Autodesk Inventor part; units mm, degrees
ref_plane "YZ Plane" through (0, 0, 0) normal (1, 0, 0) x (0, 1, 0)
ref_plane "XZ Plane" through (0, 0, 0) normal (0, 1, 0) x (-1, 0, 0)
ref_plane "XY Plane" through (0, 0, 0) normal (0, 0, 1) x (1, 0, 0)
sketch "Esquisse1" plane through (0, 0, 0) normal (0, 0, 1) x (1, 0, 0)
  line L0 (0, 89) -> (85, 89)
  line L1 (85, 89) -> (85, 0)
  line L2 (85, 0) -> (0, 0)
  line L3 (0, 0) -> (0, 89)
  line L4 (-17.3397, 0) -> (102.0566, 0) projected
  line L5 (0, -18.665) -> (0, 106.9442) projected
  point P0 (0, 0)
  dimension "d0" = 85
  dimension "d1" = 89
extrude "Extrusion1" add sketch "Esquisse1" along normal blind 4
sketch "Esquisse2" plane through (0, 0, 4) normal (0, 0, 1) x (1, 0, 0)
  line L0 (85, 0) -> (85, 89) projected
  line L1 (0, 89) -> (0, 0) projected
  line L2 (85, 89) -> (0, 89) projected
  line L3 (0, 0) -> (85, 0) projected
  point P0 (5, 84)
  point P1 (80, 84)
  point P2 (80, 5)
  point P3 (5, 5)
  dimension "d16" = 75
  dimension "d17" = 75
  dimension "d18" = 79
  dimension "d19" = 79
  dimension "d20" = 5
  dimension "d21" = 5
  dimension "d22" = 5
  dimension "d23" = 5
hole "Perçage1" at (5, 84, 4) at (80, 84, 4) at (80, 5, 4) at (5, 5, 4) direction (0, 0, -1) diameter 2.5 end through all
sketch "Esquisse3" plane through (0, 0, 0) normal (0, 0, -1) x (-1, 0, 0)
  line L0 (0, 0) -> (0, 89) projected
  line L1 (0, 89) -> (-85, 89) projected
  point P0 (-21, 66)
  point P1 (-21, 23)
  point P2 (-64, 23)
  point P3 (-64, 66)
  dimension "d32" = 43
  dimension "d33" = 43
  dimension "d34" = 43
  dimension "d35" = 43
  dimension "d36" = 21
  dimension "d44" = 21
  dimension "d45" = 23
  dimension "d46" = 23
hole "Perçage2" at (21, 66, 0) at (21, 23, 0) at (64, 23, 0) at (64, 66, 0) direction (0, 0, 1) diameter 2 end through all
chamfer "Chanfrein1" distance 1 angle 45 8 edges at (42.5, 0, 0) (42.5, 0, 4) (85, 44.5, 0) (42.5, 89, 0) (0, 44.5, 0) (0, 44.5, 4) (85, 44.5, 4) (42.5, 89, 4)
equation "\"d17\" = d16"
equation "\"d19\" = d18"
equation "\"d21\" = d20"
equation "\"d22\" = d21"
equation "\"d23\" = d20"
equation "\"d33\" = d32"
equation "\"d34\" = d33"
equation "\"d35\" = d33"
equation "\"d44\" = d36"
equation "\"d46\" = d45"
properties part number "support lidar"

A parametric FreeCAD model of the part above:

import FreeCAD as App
import Part
import Sketcher
from FreeCAD import Vector
Q = App.Units.Quantity


def edges_at(feature, points):
    """Names of the edges that pass closest to the given points."""
    edges = feature.Shape.Edges
    near = lambda p: min(range(len(edges)), key=lambda i: edges[i].distToShape(Part.Vertex(*p))[0])
    return sorted({f"Edge{near(p) + 1}" for p in points})

doc = App.newDocument("Part")
body = doc.addObject("PartDesign::Body", "Body")

# Sketch on XY plane
sketch1 = body.newObject("Sketcher::SketchObject", "Sketch")
sketch1.AttachmentSupport = (doc.getObject("XY_Plane"), [""])
sketch1.MapMode = "FlatFace"
sketch1.addGeometry(Part.LineSegment(Vector(85, 89, 0), Vector(0, 89, 0)), False)
sketch1.addGeometry(Part.LineSegment(Vector(0, 89, 0), Vector(0, 0, 0)), False)
sketch1.addGeometry(Part.LineSegment(Vector(0, 0, 0), Vector(85, 0, 0)), False)
sketch1.addGeometry(Part.LineSegment(Vector(85, 0, 0), Vector(85, 89, 0)), False)
sketch1.addConstraint(Sketcher.Constraint("Coincident", 0, 2, 1, 1))
sketch1.addConstraint(Sketcher.Constraint("Coincident", 1, 2, 2, 1))
sketch1.addConstraint(Sketcher.Constraint("Coincident", 2, 2, 3, 1))
sketch1.addConstraint(Sketcher.Constraint("Coincident", 3, 2, 0, 1))
sketch1.addConstraint(Sketcher.Constraint("Horizontal", 0))
sketch1.addConstraint(Sketcher.Constraint("Vertical", 1))
sketch1.addConstraint(Sketcher.Constraint("Horizontal", 2))
sketch1.addConstraint(Sketcher.Constraint("Vertical", 3))
sketch1.addConstraint(Sketcher.Constraint("Coincident", 1, 2, -1, 1))
sketch1.addConstraint(Sketcher.Constraint("DistanceX", 0, 2, 0, 1, Q("85 mm")))
sketch1.addConstraint(Sketcher.Constraint("DistanceY", 1, 2, 1, 1, Q("89 mm")))
pad1 = body.newObject("PartDesign::Pad", "Pad")
pad1.Profile = sketch1
pad1.Length = 4

# Sketch on XY plane
sketch2 = body.newObject("Sketcher::SketchObject", "Sketch001")
sketch2.AttachmentSupport = (doc.getObject("XY_Plane"), [""])
sketch2.MapMode = "FlatFace"
sketch2.AttachmentOffset = App.Placement(Vector(0, 0, 4), App.Rotation())
sketch2.addGeometry(Part.Circle(Vector(5, 84, 0), Vector(0, 0, 1), 1.2), False)
sketch2.addGeometry(Part.Circle(Vector(80, 84, 0), Vector(0, 0, 1), 1.2), False)
sketch2.addGeometry(Part.Circle(Vector(80, 5, 0), Vector(0, 0, 1), 1.2), False)
sketch2.addGeometry(Part.Circle(Vector(5, 5, 0), Vector(0, 0, 1), 1.2), False)
sketch2.addConstraint(Sketcher.Constraint("Equal", 0, 1))
sketch2.addConstraint(Sketcher.Constraint("Equal", 1, 2))
sketch2.addConstraint(Sketcher.Constraint("Equal", 2, 3))
sketch2.addConstraint(Sketcher.Constraint("Horizontal", 0, 3, 1, 3))
sketch2.addConstraint(Sketcher.Constraint("Horizontal", 2, 3, 3, 3))
sketch2.addConstraint(Sketcher.Constraint("Vertical", 1, 3, 2, 3))
sketch2.addConstraint(Sketcher.Constraint("Vertical", 0, 3, 3, 3))
sketch2.addConstraint(Sketcher.Constraint("Diameter", 0, Q("2.5 mm")))
sketch2.addConstraint(Sketcher.Constraint("DistanceX", -1, 1, 0, 3, Q("5 mm")))
sketch2.addConstraint(Sketcher.Constraint("DistanceY", -1, 1, 0, 3, Q("84 mm")))
sketch2.addConstraint(Sketcher.Constraint("DistanceX", -1, 1, 1, 3, Q("80 mm")))
sketch2.addConstraint(Sketcher.Constraint("DistanceY", -1, 1, 2, 3, Q("5 mm")))
doc.recompute()
hole = body.newObject("PartDesign::Hole", "Hole")
hole.Profile = sketch2
hole.ThreadType = "None"
hole.Diameter = 2.5
hole.DepthType = "ThroughAll"

# Sketch on XY plane
sketch3 = body.newObject("Sketcher::SketchObject", "Sketch002")
sketch3.AttachmentSupport = (doc.getObject("XY_Plane"), [""])
sketch3.MapMode = "FlatFace"
sketch3.addGeometry(Part.Circle(Vector(21, 66, 0), Vector(0, 0, 1), 1), False)
sketch3.addGeometry(Part.Circle(Vector(21, 23, 0), Vector(0, 0, 1), 1), False)
sketch3.addGeometry(Part.Circle(Vector(64, 23, 0), Vector(0, 0, 1), 1), False)
sketch3.addGeometry(Part.Circle(Vector(64, 66, 0), Vector(0, 0, 1), 1), False)
sketch3.addConstraint(Sketcher.Constraint("Equal", 0, 1))
sketch3.addConstraint(Sketcher.Constraint("Equal", 1, 2))
sketch3.addConstraint(Sketcher.Constraint("Equal", 2, 3))
sketch3.addConstraint(Sketcher.Constraint("Horizontal", 1, 3, 2, 3))
sketch3.addConstraint(Sketcher.Constraint("Horizontal", 0, 3, 3, 3))
sketch3.addConstraint(Sketcher.Constraint("Vertical", 0, 3, 1, 3))
sketch3.addConstraint(Sketcher.Constraint("Vertical", 2, 3, 3, 3))
sketch3.addConstraint(Sketcher.Constraint("Diameter", 0, Q("2 mm")))
sketch3.addConstraint(Sketcher.Constraint("DistanceX", -1, 1, 0, 3, Q("21 mm")))
sketch3.addConstraint(Sketcher.Constraint("DistanceY", -1, 1, 0, 3, Q("66 mm")))
sketch3.addConstraint(Sketcher.Constraint("DistanceY", -1, 1, 1, 3, Q("23 mm")))
sketch3.addConstraint(Sketcher.Constraint("DistanceX", -1, 1, 2, 3, Q("64 mm")))
doc.recompute()
hole2 = body.newObject("PartDesign::Hole", "Hole001")
hole2.Profile = sketch3
hole2.ThreadType = "None"
hole2.Diameter = 2
hole2.DepthType = "ThroughAll"
hole2.Reversed = True
doc.recompute()

chamfer = body.newObject("PartDesign::Chamfer", "Chamfer")
chamfer.Base = (hole2, edges_at(hole2, [
    (42.5, 0, 0),
    (42.5, 0, 4),
    (85, 44.5, 0),
    (42.5, 89, 0),
    (0, 44.5, 0),
    (0, 44.5, 4),
    (85, 44.5, 4),
    (42.5, 89, 4),
]))
chamfer.Size = 1

doc.recompute()
